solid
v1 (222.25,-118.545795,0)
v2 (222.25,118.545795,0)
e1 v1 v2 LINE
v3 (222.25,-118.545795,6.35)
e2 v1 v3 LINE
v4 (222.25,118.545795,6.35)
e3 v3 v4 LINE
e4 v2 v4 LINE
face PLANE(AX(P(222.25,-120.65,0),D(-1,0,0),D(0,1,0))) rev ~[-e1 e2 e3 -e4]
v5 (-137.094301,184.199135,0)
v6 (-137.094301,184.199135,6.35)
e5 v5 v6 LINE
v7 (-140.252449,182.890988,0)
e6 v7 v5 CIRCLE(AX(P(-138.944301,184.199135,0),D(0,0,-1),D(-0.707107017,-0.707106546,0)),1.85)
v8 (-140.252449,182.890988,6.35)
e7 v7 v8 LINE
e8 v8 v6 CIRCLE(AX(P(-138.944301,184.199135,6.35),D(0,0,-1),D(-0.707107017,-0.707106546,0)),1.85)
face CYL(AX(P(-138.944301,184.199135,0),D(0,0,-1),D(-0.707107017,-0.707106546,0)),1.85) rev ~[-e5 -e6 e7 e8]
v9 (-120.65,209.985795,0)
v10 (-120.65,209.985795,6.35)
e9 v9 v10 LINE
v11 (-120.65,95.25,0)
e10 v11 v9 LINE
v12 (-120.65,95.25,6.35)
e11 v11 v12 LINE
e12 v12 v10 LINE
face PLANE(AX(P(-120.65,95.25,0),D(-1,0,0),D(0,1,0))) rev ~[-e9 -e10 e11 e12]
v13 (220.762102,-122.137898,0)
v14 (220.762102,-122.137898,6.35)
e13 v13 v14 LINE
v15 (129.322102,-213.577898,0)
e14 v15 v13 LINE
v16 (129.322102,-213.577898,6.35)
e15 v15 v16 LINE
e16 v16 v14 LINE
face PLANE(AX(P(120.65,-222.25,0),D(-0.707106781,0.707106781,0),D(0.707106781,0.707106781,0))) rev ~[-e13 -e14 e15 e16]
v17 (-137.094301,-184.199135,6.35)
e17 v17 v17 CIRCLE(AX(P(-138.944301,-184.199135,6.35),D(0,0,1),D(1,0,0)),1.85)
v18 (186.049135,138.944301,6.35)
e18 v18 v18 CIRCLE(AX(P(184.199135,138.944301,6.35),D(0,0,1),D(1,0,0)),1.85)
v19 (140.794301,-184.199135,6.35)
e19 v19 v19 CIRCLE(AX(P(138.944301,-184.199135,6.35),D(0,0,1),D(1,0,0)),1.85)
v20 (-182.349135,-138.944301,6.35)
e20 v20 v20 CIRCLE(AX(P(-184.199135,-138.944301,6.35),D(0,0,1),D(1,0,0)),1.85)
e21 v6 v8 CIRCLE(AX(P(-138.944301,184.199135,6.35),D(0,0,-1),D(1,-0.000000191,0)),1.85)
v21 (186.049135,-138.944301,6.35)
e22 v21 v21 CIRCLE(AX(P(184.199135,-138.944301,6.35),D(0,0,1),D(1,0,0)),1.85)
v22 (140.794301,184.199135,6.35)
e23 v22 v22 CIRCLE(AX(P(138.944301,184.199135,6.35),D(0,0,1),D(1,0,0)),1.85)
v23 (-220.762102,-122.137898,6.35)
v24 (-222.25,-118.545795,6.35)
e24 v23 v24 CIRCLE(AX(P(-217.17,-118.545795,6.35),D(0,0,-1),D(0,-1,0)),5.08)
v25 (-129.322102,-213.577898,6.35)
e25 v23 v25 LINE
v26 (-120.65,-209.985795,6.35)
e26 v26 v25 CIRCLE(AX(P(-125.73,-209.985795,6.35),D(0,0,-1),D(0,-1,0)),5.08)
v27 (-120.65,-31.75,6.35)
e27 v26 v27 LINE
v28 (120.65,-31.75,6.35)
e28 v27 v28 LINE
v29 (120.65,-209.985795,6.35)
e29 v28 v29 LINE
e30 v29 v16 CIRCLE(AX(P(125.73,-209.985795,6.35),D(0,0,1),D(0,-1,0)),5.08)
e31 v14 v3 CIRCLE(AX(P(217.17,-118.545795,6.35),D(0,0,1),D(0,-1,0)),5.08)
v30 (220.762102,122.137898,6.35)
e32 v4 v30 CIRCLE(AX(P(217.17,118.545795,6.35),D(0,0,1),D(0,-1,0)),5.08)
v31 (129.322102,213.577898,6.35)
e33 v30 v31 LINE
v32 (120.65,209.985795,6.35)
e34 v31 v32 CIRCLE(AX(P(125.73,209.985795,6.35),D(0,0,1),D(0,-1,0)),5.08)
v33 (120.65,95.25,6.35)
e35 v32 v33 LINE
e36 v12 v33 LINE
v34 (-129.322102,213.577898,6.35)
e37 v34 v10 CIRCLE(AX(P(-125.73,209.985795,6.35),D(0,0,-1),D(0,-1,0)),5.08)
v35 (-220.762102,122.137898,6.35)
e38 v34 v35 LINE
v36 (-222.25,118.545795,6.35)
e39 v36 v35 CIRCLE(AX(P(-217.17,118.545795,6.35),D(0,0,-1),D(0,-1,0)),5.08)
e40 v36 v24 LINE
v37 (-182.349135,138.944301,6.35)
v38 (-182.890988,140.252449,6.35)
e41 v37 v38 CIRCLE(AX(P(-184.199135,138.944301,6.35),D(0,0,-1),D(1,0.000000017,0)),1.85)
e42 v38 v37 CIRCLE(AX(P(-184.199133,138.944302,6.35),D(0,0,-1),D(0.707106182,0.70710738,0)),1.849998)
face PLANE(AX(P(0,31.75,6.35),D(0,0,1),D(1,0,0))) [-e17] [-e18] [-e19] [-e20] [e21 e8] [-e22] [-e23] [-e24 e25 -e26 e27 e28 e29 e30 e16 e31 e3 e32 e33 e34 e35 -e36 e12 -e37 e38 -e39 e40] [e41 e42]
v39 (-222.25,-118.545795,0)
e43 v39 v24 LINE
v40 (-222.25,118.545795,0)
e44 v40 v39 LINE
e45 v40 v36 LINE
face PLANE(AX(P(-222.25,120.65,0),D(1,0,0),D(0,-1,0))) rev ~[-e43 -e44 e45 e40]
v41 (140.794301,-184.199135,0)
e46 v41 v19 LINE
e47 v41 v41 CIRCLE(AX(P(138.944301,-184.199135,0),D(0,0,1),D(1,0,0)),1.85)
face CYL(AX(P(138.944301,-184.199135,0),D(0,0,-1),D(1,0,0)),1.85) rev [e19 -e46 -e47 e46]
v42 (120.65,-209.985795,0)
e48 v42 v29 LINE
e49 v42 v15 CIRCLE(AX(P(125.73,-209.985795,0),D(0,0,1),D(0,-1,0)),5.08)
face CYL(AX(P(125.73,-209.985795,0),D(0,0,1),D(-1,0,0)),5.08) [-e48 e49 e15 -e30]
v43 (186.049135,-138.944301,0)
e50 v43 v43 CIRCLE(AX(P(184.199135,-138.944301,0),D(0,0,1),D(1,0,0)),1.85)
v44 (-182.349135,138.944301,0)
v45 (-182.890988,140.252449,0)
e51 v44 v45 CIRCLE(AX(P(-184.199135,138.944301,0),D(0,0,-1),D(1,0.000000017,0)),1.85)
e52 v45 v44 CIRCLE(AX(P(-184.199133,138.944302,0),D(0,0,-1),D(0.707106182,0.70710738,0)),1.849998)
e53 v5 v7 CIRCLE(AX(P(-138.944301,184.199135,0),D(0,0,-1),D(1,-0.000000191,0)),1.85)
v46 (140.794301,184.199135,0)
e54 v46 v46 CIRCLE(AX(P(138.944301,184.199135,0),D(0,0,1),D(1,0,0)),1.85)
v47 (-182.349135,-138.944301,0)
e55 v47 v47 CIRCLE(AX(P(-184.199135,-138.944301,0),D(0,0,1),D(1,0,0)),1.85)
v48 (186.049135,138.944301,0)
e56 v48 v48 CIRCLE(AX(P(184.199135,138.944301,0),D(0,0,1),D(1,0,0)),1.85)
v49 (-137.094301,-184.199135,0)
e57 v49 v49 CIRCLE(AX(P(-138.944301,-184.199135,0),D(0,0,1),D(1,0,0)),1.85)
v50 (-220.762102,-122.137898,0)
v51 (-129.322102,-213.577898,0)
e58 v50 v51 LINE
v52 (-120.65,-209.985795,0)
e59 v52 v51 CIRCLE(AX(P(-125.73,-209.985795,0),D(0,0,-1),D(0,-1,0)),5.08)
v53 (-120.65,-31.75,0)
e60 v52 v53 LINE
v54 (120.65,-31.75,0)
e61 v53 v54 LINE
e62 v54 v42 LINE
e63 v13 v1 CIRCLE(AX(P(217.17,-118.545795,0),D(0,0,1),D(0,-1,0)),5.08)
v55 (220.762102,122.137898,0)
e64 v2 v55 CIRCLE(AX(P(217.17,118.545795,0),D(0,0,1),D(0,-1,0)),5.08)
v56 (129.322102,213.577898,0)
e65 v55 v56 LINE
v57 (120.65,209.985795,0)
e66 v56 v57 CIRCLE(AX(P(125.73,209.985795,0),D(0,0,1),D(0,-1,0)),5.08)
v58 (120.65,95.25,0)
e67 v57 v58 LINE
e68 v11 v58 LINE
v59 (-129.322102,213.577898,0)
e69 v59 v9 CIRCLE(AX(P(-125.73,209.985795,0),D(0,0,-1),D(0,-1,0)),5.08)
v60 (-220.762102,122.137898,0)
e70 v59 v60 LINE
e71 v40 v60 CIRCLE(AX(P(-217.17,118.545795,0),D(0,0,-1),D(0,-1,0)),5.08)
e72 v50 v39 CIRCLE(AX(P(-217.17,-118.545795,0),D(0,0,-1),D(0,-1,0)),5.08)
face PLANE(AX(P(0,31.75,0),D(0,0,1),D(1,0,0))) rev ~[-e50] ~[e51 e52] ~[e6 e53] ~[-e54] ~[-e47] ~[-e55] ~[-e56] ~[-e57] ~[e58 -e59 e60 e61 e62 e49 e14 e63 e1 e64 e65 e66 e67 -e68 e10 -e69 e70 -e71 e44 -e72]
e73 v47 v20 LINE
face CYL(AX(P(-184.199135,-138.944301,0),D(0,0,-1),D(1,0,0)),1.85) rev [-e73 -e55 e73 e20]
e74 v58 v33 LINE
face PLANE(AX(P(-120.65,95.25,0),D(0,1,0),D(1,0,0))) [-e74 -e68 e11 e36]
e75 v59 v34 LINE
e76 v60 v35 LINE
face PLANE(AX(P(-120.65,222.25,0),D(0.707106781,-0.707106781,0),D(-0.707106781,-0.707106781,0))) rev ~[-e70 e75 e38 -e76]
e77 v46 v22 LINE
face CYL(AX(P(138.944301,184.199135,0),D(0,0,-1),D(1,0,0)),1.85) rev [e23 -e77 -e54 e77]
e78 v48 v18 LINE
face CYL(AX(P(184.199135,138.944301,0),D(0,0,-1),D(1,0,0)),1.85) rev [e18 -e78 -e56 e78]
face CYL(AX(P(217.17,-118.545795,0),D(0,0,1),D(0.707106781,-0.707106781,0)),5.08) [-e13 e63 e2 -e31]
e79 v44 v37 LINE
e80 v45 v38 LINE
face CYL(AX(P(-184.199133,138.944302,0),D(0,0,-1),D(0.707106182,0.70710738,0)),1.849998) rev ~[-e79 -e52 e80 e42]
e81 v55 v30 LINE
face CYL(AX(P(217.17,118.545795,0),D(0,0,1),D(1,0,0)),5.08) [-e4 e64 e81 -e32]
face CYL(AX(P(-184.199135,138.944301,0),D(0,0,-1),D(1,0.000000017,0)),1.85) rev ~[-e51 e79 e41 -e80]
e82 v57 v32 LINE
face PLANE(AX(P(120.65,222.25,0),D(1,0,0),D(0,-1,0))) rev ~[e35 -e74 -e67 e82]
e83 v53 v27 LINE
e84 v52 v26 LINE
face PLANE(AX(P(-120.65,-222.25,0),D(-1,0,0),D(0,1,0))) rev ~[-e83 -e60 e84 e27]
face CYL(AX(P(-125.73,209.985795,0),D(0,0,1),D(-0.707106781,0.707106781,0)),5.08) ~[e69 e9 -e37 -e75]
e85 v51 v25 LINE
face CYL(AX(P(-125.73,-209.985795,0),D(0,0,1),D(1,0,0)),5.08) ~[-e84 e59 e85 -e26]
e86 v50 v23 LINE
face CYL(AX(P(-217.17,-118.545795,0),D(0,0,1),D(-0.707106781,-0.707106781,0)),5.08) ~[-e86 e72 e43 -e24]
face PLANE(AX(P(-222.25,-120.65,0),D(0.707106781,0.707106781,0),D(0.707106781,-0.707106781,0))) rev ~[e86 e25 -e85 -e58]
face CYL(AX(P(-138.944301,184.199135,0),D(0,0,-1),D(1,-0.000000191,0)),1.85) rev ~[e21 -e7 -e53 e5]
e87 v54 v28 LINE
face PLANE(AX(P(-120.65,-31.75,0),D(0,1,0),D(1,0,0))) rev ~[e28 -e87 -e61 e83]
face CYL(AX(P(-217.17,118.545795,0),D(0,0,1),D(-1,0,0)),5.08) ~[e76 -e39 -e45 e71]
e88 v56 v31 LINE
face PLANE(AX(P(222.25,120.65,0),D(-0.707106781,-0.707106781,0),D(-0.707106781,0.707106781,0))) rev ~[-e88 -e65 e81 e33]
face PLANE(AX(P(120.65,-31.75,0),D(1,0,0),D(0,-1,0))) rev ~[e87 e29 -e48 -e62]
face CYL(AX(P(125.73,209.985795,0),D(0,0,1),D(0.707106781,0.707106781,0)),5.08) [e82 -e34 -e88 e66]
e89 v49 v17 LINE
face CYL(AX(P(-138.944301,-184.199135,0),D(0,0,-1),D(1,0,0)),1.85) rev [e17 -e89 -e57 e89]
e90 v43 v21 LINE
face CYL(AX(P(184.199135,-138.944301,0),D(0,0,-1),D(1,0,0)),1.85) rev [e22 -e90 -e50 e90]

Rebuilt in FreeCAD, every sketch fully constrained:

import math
import FreeCAD as App
import Part
import Sketcher

V = App.Vector
Q = App.Units.Quantity


def edges_at(feature, points):
    """Names of the edges that pass closest to the given points."""
    edges = feature.Shape.Edges
    near = lambda p: min(range(len(edges)), key=lambda i: edges[i].distToShape(Part.Vertex(*p))[0])
    return sorted({f"Edge{near(p) + 1}" for p in points})

doc = App.newDocument("Part")
body = doc.addObject("PartDesign::Body", "Body")

# Sketch on XY plane
sketch1 = doc.addObject("Sketcher::SketchObject", "Sketch")
body.addObject(sketch1)
sketch1.AttachmentSupport = (doc.XY_Plane, [""])
sketch1.MapMode = "FlatFace"
sketch1.addGeometry([
    Part.LineSegment(V(-120.7, -31.8, 0), V(120.7, -31.8, 0)),  # 0
    Part.LineSegment(V(120.7, -31.8, 0), V(120.7, -222.2, 0)),  # 1
    Part.LineSegment(V(120.7, -222.2, 0), V(222.2, -120.7, 0)),  # 2
    Part.LineSegment(V(222.2, -120.7, 0), V(222.2, 120.7, 0)),  # 3
    Part.LineSegment(V(222.2, 120.7, 0), V(120.7, 222.2, 0)),  # 4
    Part.LineSegment(V(120.7, 222.2, 0), V(120.7, 95.2, 0)),  # 5
    Part.LineSegment(V(120.7, 95.2, 0), V(-120.7, 95.2, 0)),  # 6
    Part.LineSegment(V(-120.7, 95.2, 0), V(-120.7, 222.2, 0)),  # 7
    Part.LineSegment(V(-120.7, 222.2, 0), V(-222.2, 120.7, 0)),  # 8
    Part.LineSegment(V(-222.2, 120.7, 0), V(-222.2, -120.7, 0)),  # 9
    Part.LineSegment(V(-222.2, -120.7, 0), V(-120.7, -222.2, 0)),  # 10
    Part.LineSegment(V(-120.7, -222.2, 0), V(-120.7, -31.8, 0)),  # 11
    Part.Circle(V(-138.9, -184.2, 0), V(0, 0, 1), 1.9),  # 12
    Part.Circle(V(-184.2, -138.9, 0), V(0, 0, 1), 1.9),  # 13
    Part.Circle(V(138.9, -184.2, 0), V(0, 0, 1), 1.9),  # 14
    Part.Circle(V(184.2, -138.9, 0), V(0, 0, 1), 1.9),  # 15
    Part.ArcOfCircle(Part.Circle(V(-184.2, 138.9, 0), V(0, 0, 1), 1.8), math.radians(0), math.radians(45)),  # 16
    Part.ArcOfCircle(Part.Circle(V(-184.2, 138.9, 0), V(0, 0, 1), 1.8), math.radians(45), math.radians(360)),  # 17
    Part.ArcOfCircle(Part.Circle(V(-138.9, 184.2, 0), V(0, 0, 1), 1.9), math.radians(0), math.radians(225)),  # 18
    Part.ArcOfCircle(Part.Circle(V(-138.9, 184.2, 0), V(0, 0, 1), 1.9), math.radians(-135), math.radians(0)),  # 19
    Part.Circle(V(184.2, 138.9, 0), V(0, 0, 1), 1.9),  # 20
    Part.Circle(V(138.9, 184.2, 0), V(0, 0, 1), 1.9),  # 21
], False)
sketch1.addConstraint([
    Sketcher.Constraint("Coincident", 0, 2, 1, 1),
    Sketcher.Constraint("Coincident", 1, 2, 2, 1),
    Sketcher.Constraint("Coincident", 2, 2, 3, 1),
    Sketcher.Constraint("Coincident", 3, 2, 4, 1),
    Sketcher.Constraint("Coincident", 4, 2, 5, 1),
    Sketcher.Constraint("Coincident", 5, 2, 6, 1),
    Sketcher.Constraint("Coincident", 6, 2, 7, 1),
    Sketcher.Constraint("Coincident", 7, 2, 8, 1),
    Sketcher.Constraint("Coincident", 8, 2, 9, 1),
    Sketcher.Constraint("Coincident", 9, 2, 10, 1),
    Sketcher.Constraint("Coincident", 10, 2, 11, 1),
    Sketcher.Constraint("Coincident", 11, 2, 0, 1),
    Sketcher.Constraint("Tangent", 16, 1, 17, 2),
    Sketcher.Constraint("Coincident", 17, 1, 16, 2),
    Sketcher.Constraint("Tangent", 18, 1, 19, 2),
    Sketcher.Constraint("Coincident", 19, 1, 18, 2),
    Sketcher.Constraint("Horizontal", 0),
    Sketcher.Constraint("Vertical", 1),
    Sketcher.Constraint("Vertical", 3),
    Sketcher.Constraint("Vertical", 5),
    Sketcher.Constraint("Horizontal", 6),
    Sketcher.Constraint("Vertical", 7),
    Sketcher.Constraint("Vertical", 9),
    Sketcher.Constraint("Vertical", 11),
    Sketcher.Constraint("Equal", 12, 13),
    Sketcher.Constraint("Equal", 13, 14),
    Sketcher.Constraint("Equal", 14, 15),
    Sketcher.Constraint("Equal", 15, 16),
    Sketcher.Constraint("Equal", 17, 18),
    Sketcher.Constraint("Equal", 19, 20),
    Sketcher.Constraint("Equal", 20, 21),
    Sketcher.Constraint("Symmetric", 15, 3, 16, 3, -1, 1),
    Sketcher.Constraint("Symmetric", 14, 3, 18, 3, -1, 1),
    Sketcher.Constraint("Symmetric", 13, 3, 20, 3, -1, 1),
    Sketcher.Constraint("Symmetric", 12, 3, 21, 3, -1, 1),
    Sketcher.Constraint("Symmetric", 1, 2, 7, 2, -1, 1),
    Sketcher.Constraint("Symmetric", 2, 2, 8, 2, -1, 1),
    Sketcher.Constraint("Symmetric", 4, 2, 10, 2, -1, 1),
    Sketcher.Constraint("Symmetric", 12, 3, 14, 3, -2),
    Sketcher.Constraint("Symmetric", 13, 3, 15, 3, -2),
    Sketcher.Constraint("Symmetric", 4, 2, 7, 2, -2),
    Sketcher.Constraint("Perpendicular", 2, 4),
    Sketcher.Constraint("Perpendicular", 8, 10),
    Sketcher.Constraint("Horizontal", 3, 2, 8, 2),
    Sketcher.Constraint("Horizontal", 20, 3, 16, 1),
    Sketcher.Constraint("Horizontal", 21, 3, 18, 1),
    Sketcher.Constraint("Equal", 6, 3),
    Sketcher.Constraint("DistanceY", 5, 2, 5, 1, Q("5 in")),
    Sketcher.Constraint("DistanceX", 0, 1, 0, 2, Q("9.5 in")),
    Sketcher.Constraint("DistanceY", 1, 2, 1, 1, Q("7.5 in")),
    Sketcher.Constraint("DistanceX", 0, 2, 2, 2, Q("4 in")),
    Sketcher.Constraint("Diameter", 12, 3.7),
    Sketcher.Constraint("DistanceX", 16, 1, -1, 1, Q("7.1790998 in")),
    Sketcher.Constraint("DistanceX", 12, 3, -1, 1, 138.944301),
    Sketcher.Constraint("DistanceY", 13, 3, -1, 1, 138.944301),
    Sketcher.Constraint("DistanceX", 17, 1, -1, 1, 182.890988),
    Sketcher.Constraint("DistanceX", 19, 1, -1, 1, 140.252449),
    Sketcher.Constraint("DistanceY", 12, 3, 18, 3, 368.39827),
])
pad1 = doc.addObject("PartDesign::Pad", "Pad")
body.addObject(pad1)
pad1.Profile = sketch1
pad1.Length = Q("0.25 in")
doc.recompute()

fillet = doc.addObject("PartDesign::Fillet", "Fillet")
body.addObject(fillet)
fillet.Base = (pad1, edges_at(pad1, [
    (-120.65, -222.25, 3.175),
    (120.65, -222.25, 3.175),
    (120.65, 222.25, 3.175),
    (-120.65, 222.25, 3.175),
    (222.25, 120.65, 3.175),
    (222.25, -120.65, 3.175),
    (-222.25, 120.65, 3.175),
    (-222.25, -120.65, 3.175),
]))
fillet.Radius = Q("0.2 in")

doc.recompute()
